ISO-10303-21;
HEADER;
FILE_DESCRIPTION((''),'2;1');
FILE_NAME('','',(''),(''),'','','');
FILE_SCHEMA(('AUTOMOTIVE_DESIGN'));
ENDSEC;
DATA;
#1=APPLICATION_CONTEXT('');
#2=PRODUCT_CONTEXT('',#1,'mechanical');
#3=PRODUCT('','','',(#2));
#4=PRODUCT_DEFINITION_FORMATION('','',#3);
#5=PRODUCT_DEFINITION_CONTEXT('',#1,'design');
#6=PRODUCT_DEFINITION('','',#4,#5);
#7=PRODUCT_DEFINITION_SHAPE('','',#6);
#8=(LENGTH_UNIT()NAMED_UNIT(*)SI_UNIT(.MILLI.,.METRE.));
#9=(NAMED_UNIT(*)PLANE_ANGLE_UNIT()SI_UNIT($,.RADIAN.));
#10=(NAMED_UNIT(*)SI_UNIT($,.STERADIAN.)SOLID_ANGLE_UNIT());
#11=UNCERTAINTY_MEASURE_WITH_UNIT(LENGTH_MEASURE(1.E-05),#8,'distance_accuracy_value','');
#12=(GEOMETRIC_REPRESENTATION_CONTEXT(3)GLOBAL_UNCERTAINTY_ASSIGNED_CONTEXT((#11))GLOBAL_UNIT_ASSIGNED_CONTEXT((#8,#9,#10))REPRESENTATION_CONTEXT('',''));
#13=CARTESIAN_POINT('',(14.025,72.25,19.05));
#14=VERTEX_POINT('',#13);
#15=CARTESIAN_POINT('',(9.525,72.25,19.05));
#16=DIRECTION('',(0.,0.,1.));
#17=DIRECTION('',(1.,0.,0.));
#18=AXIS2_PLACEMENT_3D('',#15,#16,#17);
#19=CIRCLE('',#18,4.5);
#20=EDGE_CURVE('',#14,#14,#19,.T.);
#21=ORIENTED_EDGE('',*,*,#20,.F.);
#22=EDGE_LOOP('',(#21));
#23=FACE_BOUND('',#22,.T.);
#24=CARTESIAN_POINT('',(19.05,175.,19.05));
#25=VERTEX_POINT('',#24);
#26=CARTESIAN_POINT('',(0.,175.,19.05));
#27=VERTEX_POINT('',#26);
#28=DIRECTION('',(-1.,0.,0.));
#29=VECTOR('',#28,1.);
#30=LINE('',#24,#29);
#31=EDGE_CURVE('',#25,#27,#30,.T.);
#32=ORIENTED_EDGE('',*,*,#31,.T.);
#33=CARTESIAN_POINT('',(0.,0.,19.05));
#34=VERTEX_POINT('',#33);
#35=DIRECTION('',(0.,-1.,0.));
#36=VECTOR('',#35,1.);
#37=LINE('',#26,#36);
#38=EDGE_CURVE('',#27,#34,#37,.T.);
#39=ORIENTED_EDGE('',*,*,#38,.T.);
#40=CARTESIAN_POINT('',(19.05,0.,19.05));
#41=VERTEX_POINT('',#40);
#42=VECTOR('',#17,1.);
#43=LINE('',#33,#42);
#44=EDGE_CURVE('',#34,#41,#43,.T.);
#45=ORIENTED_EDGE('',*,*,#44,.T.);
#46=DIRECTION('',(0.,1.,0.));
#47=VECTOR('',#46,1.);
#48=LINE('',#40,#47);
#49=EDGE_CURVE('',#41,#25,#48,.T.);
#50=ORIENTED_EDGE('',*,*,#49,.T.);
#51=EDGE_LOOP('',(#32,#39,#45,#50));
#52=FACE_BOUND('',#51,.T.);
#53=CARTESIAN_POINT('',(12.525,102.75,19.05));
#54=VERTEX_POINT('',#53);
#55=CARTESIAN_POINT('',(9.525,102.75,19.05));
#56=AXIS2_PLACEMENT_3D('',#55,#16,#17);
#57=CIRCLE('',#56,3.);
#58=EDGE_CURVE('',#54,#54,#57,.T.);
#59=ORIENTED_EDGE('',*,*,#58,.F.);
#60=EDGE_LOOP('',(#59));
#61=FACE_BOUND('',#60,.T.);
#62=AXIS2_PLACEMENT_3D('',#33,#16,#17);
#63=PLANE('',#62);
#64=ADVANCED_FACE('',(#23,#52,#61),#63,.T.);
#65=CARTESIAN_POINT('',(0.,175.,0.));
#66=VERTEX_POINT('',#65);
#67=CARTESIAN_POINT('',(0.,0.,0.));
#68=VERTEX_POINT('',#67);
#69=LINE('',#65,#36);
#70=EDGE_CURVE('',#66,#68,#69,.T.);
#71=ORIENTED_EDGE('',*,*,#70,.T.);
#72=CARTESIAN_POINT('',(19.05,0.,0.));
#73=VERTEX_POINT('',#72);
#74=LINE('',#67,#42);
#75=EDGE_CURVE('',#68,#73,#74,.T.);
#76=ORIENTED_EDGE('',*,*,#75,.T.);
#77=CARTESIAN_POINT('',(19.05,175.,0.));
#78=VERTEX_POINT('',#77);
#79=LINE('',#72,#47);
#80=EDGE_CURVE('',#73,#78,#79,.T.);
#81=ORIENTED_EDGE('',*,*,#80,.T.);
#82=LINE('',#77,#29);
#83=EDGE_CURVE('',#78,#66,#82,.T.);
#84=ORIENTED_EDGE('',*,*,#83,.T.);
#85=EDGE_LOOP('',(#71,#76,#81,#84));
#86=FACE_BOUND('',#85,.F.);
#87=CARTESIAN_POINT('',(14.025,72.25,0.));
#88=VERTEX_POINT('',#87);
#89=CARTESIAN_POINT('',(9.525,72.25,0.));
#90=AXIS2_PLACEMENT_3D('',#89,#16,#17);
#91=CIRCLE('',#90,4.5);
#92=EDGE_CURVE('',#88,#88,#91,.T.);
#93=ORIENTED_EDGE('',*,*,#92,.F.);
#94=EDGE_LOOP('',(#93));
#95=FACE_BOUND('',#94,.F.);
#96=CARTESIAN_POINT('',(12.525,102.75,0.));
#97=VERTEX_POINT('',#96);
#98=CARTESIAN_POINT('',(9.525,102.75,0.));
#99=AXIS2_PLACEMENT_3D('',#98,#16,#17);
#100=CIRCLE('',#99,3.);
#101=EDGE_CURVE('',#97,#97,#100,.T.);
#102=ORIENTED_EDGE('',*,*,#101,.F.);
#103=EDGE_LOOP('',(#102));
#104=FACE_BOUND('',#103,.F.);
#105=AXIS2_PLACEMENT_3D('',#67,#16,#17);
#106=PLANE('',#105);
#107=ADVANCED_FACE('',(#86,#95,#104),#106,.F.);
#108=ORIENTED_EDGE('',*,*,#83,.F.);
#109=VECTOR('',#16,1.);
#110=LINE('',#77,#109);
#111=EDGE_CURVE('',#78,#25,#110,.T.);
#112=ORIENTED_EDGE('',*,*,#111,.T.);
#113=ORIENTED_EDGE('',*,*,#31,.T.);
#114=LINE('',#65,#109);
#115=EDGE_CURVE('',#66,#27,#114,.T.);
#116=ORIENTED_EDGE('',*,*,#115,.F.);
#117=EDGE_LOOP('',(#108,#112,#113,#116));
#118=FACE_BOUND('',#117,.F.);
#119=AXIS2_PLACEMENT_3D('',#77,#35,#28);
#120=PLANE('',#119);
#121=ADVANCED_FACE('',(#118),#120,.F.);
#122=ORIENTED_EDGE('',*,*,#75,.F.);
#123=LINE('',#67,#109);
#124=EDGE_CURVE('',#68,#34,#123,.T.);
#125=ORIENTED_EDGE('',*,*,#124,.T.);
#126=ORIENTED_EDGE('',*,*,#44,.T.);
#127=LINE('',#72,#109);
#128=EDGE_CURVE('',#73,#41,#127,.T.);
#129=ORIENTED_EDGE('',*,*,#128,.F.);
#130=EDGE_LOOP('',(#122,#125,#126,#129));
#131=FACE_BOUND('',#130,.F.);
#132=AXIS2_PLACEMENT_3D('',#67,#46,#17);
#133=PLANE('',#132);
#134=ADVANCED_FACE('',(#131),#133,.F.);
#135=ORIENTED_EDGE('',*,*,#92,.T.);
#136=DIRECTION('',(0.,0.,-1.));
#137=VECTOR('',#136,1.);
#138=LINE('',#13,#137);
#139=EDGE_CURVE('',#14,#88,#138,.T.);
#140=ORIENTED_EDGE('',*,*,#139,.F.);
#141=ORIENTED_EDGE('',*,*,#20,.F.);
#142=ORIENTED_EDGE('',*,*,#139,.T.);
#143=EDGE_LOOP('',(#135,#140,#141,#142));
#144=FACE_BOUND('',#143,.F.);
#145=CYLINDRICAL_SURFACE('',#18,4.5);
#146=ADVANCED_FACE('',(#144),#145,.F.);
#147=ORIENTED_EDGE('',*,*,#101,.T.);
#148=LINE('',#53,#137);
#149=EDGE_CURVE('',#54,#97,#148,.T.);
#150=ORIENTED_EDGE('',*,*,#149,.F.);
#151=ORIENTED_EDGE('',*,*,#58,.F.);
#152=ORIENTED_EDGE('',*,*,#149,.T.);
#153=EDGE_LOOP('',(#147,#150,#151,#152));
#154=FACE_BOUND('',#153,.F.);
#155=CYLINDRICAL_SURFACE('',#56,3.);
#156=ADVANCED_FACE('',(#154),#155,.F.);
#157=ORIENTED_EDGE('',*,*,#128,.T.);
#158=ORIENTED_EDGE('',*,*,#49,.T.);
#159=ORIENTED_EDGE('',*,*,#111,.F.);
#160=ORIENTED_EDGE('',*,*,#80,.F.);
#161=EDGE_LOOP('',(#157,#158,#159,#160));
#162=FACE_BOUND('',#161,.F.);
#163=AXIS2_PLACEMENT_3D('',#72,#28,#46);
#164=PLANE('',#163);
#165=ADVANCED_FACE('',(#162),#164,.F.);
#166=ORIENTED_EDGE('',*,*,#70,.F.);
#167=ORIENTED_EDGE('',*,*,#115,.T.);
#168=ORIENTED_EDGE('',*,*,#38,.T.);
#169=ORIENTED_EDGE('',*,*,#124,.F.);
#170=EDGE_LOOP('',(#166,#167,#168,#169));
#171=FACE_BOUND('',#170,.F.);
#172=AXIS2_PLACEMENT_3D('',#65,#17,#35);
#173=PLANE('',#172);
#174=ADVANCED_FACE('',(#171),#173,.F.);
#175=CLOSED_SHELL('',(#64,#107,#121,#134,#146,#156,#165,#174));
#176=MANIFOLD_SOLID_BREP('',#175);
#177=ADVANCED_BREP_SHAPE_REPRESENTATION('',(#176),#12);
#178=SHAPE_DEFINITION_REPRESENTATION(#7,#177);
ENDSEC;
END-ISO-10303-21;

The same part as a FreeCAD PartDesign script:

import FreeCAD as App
import Part
import Sketcher

V = App.Vector
Q = App.Units.Quantity


def add_polygon(sketch, points):
    """Adds a closed chain of lines whose ends are joined by coincident constraints."""
    first, n = sketch.GeometryCount, len(points)
    for a, b in zip(points, points[1:] + points[:1]):
        sketch.addGeometry(Part.LineSegment(App.Vector(*a, 0), App.Vector(*b, 0)), False)
    for i in range(n):
        sketch.addConstraint(Sketcher.Constraint("Coincident", first + i, 2, first + (i + 1) % n, 1))

doc = App.newDocument("Part")
body = doc.addObject("PartDesign::Body", "Body")

# Sketch on XY plane
sketch1 = body.newObject("Sketcher::SketchObject", "Sketch")
sketch1.AttachmentSupport = (doc.getObject("XY_Plane"), [""])
sketch1.MapMode = "FlatFace"
add_polygon(sketch1, [(0, 175), (0, 0), (19, 0), (19, 175)])  # lines 0-3
sketch1.addConstraint(Sketcher.Constraint("Vertical", 0))
sketch1.addConstraint(Sketcher.Constraint("Horizontal", 1))
sketch1.addConstraint(Sketcher.Constraint("Vertical", 2))
sketch1.addConstraint(Sketcher.Constraint("Horizontal", 3))
sketch1.addConstraint(Sketcher.Constraint("Coincident", 0, 2, -1, 1))
sketch1.addConstraint(Sketcher.Constraint("DistanceY", 0, 2, 0, 1, Q("175 mm")))
sketch1.addConstraint(Sketcher.Constraint("DistanceX", 1, 1, 1, 2, Q("19.05 mm")))
pad1 = body.newObject("PartDesign::Pad", "Pad")
pad1.Profile = sketch1
pad1.Length = 19.05

# Sketch on XY plane
sketch2 = body.newObject("Sketcher::SketchObject", "Sketch001")
sketch2.AttachmentSupport = (doc.getObject("XY_Plane"), [""])
sketch2.MapMode = "FlatFace"
sketch2.AttachmentOffset = App.Placement(V(0, 0, 19.05), App.Rotation())
sketch2.addGeometry(Part.Circle(V(9.5, 102.8, 0), V(0, 0, 1), 3), False)
sketch2.addGeometry(Part.Circle(V(9.5, 72.2, 0), V(0, 0, 1), 4.5), False)
sketch2.addConstraint(Sketcher.Constraint("Vertical", 0, 3, 1, 3))
sketch2.addConstraint(Sketcher.Constraint("Diameter", 0, Q("6 mm")))
sketch2.addConstraint(Sketcher.Constraint("Diameter", 1, Q("9 mm")))
sketch2.addConstraint(Sketcher.Constraint("DistanceY", 1, 3, 0, 3, Q("30.5 mm")))
sketch2.addConstraint(Sketcher.Constraint("DistanceY", -1, 1, 0, 3, Q("102.75 mm")))
sketch2.addConstraint(Sketcher.Constraint("DistanceX", -1, 1, 0, 3, Q("9.525 mm")))
pocket1 = body.newObject("PartDesign::Pocket", "Pocket")
pocket1.Profile = sketch2
pocket1.Type = "ThroughAll"

doc.recompute()
